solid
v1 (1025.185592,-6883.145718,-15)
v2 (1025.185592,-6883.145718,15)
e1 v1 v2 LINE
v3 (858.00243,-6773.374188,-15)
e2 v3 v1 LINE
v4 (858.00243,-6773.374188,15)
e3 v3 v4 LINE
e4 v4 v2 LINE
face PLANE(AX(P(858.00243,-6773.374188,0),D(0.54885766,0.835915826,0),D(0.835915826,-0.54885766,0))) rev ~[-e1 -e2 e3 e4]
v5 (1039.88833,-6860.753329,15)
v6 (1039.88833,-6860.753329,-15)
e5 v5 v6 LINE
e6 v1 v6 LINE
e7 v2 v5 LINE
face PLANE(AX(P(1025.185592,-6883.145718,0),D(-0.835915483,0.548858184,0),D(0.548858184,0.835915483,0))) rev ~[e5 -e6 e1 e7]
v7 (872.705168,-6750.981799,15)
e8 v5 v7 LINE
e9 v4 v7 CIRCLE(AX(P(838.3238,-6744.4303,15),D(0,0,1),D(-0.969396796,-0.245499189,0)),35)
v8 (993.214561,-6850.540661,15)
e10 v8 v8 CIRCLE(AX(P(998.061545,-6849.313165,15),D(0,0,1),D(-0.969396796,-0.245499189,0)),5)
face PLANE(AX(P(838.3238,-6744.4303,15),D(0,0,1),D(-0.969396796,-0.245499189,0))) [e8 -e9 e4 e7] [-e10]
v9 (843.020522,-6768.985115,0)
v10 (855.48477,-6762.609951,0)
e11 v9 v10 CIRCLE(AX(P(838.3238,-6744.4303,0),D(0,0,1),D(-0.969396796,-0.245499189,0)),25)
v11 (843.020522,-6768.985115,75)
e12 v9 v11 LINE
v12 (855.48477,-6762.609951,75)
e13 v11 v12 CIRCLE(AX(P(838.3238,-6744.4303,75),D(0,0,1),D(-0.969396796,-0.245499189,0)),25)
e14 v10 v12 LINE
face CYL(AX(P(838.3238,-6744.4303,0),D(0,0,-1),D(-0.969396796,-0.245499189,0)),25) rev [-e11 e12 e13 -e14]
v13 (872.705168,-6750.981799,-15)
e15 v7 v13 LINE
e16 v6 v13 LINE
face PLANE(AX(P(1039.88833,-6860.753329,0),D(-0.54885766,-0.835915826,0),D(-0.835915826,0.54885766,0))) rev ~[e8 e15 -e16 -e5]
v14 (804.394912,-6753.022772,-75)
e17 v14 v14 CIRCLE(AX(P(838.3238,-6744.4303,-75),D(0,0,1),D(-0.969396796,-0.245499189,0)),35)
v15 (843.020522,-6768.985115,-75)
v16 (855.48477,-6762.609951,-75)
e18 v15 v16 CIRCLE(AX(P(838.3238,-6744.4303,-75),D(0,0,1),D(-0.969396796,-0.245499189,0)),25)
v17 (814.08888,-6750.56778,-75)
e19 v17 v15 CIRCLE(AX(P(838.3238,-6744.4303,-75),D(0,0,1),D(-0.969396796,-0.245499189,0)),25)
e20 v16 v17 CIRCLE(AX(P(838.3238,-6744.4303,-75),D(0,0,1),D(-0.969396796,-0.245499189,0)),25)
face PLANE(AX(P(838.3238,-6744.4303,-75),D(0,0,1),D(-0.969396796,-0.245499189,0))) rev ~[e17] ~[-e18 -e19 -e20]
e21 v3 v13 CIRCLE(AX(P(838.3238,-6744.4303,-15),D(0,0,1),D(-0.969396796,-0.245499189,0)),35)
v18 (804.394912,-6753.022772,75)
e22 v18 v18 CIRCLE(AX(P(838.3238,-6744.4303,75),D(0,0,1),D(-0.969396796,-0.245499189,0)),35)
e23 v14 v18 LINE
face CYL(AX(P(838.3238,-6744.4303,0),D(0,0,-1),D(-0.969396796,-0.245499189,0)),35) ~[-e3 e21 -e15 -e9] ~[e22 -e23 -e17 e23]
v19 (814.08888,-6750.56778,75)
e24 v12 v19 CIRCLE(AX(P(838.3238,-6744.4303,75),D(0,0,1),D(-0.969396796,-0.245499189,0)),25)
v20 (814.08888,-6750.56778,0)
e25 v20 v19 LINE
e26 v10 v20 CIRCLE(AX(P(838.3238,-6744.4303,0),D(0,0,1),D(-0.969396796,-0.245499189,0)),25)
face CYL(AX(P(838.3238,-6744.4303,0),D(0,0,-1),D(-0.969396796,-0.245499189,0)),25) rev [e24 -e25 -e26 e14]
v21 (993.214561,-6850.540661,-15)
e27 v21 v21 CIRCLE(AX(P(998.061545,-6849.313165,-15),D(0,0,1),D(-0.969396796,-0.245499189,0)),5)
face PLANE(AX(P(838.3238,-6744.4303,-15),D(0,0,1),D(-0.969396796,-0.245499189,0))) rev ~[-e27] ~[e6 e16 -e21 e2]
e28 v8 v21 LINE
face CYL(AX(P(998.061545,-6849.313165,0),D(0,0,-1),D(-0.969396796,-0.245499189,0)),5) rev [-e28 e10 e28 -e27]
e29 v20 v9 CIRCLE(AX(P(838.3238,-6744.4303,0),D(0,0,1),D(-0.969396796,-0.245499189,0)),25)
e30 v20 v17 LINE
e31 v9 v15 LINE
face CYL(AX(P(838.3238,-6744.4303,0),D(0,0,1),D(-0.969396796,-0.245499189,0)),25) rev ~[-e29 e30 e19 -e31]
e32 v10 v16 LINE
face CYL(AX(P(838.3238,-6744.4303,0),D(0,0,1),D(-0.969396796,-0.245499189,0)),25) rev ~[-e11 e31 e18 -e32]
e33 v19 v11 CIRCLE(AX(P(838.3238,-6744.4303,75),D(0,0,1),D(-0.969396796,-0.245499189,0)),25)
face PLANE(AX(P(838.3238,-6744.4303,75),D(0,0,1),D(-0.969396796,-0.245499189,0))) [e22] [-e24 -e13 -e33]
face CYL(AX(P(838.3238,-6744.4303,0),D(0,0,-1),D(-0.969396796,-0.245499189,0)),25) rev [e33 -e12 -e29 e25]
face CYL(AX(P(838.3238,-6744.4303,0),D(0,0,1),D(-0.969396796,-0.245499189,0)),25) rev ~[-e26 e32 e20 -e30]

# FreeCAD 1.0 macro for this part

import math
import FreeCAD as App
import Part
import Sketcher
Q = App.Units.Quantity

doc = App.newDocument("Part")
body = doc.addObject("PartDesign::Body", "Body")

sketch1 = body.newObject("Sketcher::SketchObject", "Sketch")
sketch1.AttachmentSupport = (doc.getObject("XY_Plane"), [""])
sketch1.MapMode = "FlatFace"
sketch1.addGeometry([
    Part.Circle(App.Vector(838, -6744, 0), App.Vector(0, 0, 1), 35),
    Part.Circle(App.Vector(838, -6744, 0), App.Vector(0, 0, 1), 25),
], False)
sketch1.addConstraint([
    Sketcher.Constraint("Coincident", 1, 3, 0, 3),
    Sketcher.Constraint("Diameter", 0, Q("70 mm")),
    Sketcher.Constraint("Diameter", 1, Q("50 mm")),
    Sketcher.Constraint("DistanceX", -1, 1, 0, 3, Q("838.3238 mm")),
    Sketcher.Constraint("DistanceY", 0, 3, -1, 1, Q("6744.4303 mm")),
])
pad1 = body.newObject("PartDesign::Pad", "Pad")
pad1.Profile = sketch1
pad1.Length = 150
pad1.Midplane = True

sketch2 = body.newObject("Sketcher::SketchObject", "Sketch001")
sketch2.AttachmentSupport = (doc.getObject("XY_Plane"), [""])
sketch2.MapMode = "FlatFace"
sketch2.addGeometry([
    Part.ArcOfCircle(Part.Circle(App.Vector(838, -6744, 0), App.Vector(0, 0, 1), 35), math.radians(-56), math.radians(-11)),
    Part.LineSegment(App.Vector(858, -6773, 0), App.Vector(1025, -6883, 0)),
    Part.LineSegment(App.Vector(1025, -6883, 0), App.Vector(1040, -6861, 0)),
    Part.LineSegment(App.Vector(1040, -6861, 0), App.Vector(873, -6751, 0)),
    Part.Circle(App.Vector(998, -6849, 0), App.Vector(0, 0, 1), 5),
], False)
sketch2.addConstraint([
    Sketcher.Constraint("Coincident", 0, 1, 1, 1),
    Sketcher.Constraint("Coincident", 1, 2, 2, 1),
    Sketcher.Constraint("Coincident", 2, 2, 3, 1),
    Sketcher.Constraint("Coincident", 3, 2, 0, 2),
    Sketcher.Constraint("Perpendicular", 1, 2),
    Sketcher.Constraint("Perpendicular", 2, 3),
    Sketcher.Constraint("Equal", 1, 3),
    Sketcher.Constraint("Radius", 0, Q("35 mm")),
    Sketcher.Constraint("Distance", 1, Q("200 mm")),
    Sketcher.Constraint("Diameter", 4, Q("10 mm")),
    Sketcher.Constraint("DistanceY", 0, 1, 0, 3, Q("28.944 mm")),
    Sketcher.Constraint("DistanceX", 0, 1, 4, 3, Q("140.059 mm")),
    Sketcher.Constraint("DistanceY", 4, 3, 0, 1, Q("75.939 mm")),
    Sketcher.Constraint("DistanceX", 4, 3, 1, 2, Q("27.124 mm")),
    Sketcher.Constraint("DistanceX", -1, 1, 0, 3, Q("838.3238 mm")),
    Sketcher.Constraint("DistanceY", 0, 3, -1, 1, Q("6744.4303 mm")),
])
pad2 = body.newObject("PartDesign::Pad", "Pad001")
pad2.Profile = sketch2
pad2.Length = 30
pad2.Midplane = True

doc.recompute()
